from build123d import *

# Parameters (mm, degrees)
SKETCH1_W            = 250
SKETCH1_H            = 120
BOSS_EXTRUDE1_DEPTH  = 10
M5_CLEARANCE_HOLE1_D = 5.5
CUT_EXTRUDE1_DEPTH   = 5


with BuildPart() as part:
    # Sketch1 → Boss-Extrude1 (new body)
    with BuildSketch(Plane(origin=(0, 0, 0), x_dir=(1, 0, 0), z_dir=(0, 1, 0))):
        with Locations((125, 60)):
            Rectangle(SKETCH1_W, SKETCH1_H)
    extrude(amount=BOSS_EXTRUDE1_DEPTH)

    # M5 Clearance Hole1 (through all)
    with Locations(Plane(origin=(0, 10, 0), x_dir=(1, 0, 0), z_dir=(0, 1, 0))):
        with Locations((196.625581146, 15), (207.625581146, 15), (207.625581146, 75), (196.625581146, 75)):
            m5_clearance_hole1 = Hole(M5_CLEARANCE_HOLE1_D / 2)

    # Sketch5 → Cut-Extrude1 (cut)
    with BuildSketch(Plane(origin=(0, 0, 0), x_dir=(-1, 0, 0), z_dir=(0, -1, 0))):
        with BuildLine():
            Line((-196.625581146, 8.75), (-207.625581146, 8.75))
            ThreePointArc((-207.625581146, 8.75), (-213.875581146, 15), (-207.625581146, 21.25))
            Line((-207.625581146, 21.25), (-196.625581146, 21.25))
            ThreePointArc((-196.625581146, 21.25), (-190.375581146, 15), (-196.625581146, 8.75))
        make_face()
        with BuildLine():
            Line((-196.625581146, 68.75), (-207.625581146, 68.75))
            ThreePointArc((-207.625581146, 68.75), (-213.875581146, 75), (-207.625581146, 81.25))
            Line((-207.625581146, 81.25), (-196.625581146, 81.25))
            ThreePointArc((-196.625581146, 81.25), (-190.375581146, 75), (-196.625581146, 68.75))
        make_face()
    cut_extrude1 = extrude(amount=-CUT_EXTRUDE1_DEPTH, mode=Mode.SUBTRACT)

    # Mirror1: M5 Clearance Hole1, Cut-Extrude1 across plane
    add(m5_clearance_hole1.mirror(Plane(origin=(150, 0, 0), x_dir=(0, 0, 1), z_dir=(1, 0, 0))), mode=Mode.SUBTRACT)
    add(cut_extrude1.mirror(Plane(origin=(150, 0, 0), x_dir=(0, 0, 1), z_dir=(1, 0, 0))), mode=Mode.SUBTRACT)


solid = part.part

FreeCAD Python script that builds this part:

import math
import FreeCAD as App
import Part
import Sketcher
from FreeCAD import Vector

doc = App.newDocument("Part")
body = doc.addObject("PartDesign::Body", "Body")

# Sketch on XZ plane
sketch1 = doc.addObject("Sketcher::SketchObject", "Sketch")
body.addObject(sketch1)
sketch1.AttachmentSupport = (doc.XZ_Plane, [""])
sketch1.MapMode = "FlatFace"
sketch1.addGeometry([
    Part.LineSegment(Vector(0, -120, 0), Vector(0, 0, 0)),
    Part.LineSegment(Vector(0, 0, 0), Vector(250, 0, 0)),
    Part.LineSegment(Vector(250, 0, 0), Vector(250, -120, 0)),
    Part.LineSegment(Vector(250, -120, 0), Vector(0, -120, 0)),
], False)
sketch1.addConstraint([
    Sketcher.Constraint("Coincident", 0, 2, 1, 1),
    Sketcher.Constraint("Coincident", 1, 2, 2, 1),
    Sketcher.Constraint("Coincident", 2, 2, 3, 1),
    Sketcher.Constraint("Coincident", 3, 2, 0, 1),
    Sketcher.Constraint("Vertical", 0),
    Sketcher.Constraint("Horizontal", 1),
    Sketcher.Constraint("Vertical", 2),
    Sketcher.Constraint("Horizontal", 3),
    Sketcher.Constraint("Coincident", 0, 2, -1, 1),
    Sketcher.Constraint("DistanceX", 1, 1, 1, 2, 250.0),
    Sketcher.Constraint("DistanceY", 0, 1, 0, 2, 120.0),
])
pad1 = doc.addObject("PartDesign::Pad", "Pad")
body.addObject(pad1)
pad1.Profile = sketch1
pad1.Length = 10
pad1.Reversed = True

# Sketch on XZ plane
sketch2 = doc.addObject("Sketcher::SketchObject", "Sketch001")
body.addObject(sketch2)
sketch2.AttachmentSupport = (doc.XZ_Plane, [""])
sketch2.MapMode = "FlatFace"
sketch2.AttachmentOffset = App.Placement(Vector(0, 0, -10), App.Rotation())
sketch2.addGeometry([
    Part.Circle(Vector(196.6, -15, 0), Vector(0, 0, 1), 2.8),
    Part.Circle(Vector(207.6, -15, 0), Vector(0, 0, 1), 2.8),
    Part.Circle(Vector(207.6, -75, 0), Vector(0, 0, 1), 2.8),
    Part.Circle(Vector(196.6, -75, 0), Vector(0, 0, 1), 2.8),
], False)
sketch2.addConstraint([
    Sketcher.Constraint("Equal", 0, 1),
    Sketcher.Constraint("Equal", 1, 2),
    Sketcher.Constraint("Equal", 2, 3),
    Sketcher.Constraint("Horizontal", 0, 3, 1, 3),
    Sketcher.Constraint("Horizontal", 2, 3, 3, 3),
    Sketcher.Constraint("Vertical", 1, 3, 2, 3),
    Sketcher.Constraint("Vertical", 0, 3, 3, 3),
    Sketcher.Constraint("Diameter", 0, 5.5),
    Sketcher.Constraint("DistanceY", 0, 3, -1, 1, 15.0),
    Sketcher.Constraint("DistanceY", 2, 3, -1, 1, 75.0),
    Sketcher.Constraint("DistanceX", 0, 3, 1, 3, 11.0),
    Sketcher.Constraint("DistanceX", -1, 1, 0, 3, 196.625581),
])
doc.recompute()
hole = doc.addObject("PartDesign::Hole", "Hole")
body.addObject(hole)
hole.Profile = sketch2
hole.ThreadType = "None"
hole.Diameter = 5.5
hole.DepthType = "ThroughAll"
hole.Reversed = True

# Sketch on XZ plane
sketch3 = doc.addObject("Sketcher::SketchObject", "Sketch002")
body.addObject(sketch3)
sketch3.AttachmentSupport = (doc.XZ_Plane, [""])
sketch3.MapMode = "FlatFace"
sketch3.addGeometry([
    Part.LineSegment(Vector(208, -9, 0), Vector(197, -9, 0)),  # 0
    Part.ArcOfCircle(Part.Circle(Vector(197, -15, 0), Vector(0, 0, 1), 6), math.radians(90), math.radians(270)),  # 1
    Part.LineSegment(Vector(197, -21, 0), Vector(208, -21, 0)),  # 2
    Part.ArcOfCircle(Part.Circle(Vector(208, -15, 0), Vector(0, 0, 1), 6), math.radians(-90), math.radians(90)),  # 3
    Part.LineSegment(Vector(208, -69, 0), Vector(197, -69, 0)),  # 4
    Part.ArcOfCircle(Part.Circle(Vector(197, -75, 0), Vector(0, 0, 1), 6), math.radians(90), math.radians(270)),  # 5
    Part.LineSegment(Vector(197, -81, 0), Vector(208, -81, 0)),  # 6
    Part.ArcOfCircle(Part.Circle(Vector(208, -75, 0), Vector(0, 0, 1), 6), math.radians(-90), math.radians(90)),  # 7
], False)
sketch3.addConstraint([
    Sketcher.Constraint("Tangent", 0, 2, 1, 1),
    Sketcher.Constraint("Tangent", 1, 2, 2, 1),
    Sketcher.Constraint("Tangent", 2, 2, 3, 1),
    Sketcher.Constraint("Tangent", 3, 2, 0, 1),
    Sketcher.Constraint("Tangent", 4, 2, 5, 1),
    Sketcher.Constraint("Tangent", 5, 2, 6, 1),
    Sketcher.Constraint("Tangent", 6, 2, 7, 1),
    Sketcher.Constraint("Tangent", 7, 2, 4, 1),
    Sketcher.Constraint("Horizontal", 0),
    Sketcher.Constraint("Horizontal", 2),
    Sketcher.Constraint("Horizontal", 4),
    Sketcher.Constraint("Horizontal", 6),
    Sketcher.Constraint("Equal", 3, 5),
    Sketcher.Constraint("Vertical", 1, 3, 5, 3),
    Sketcher.Constraint("Vertical", 3, 3, 7, 3),
    Sketcher.Constraint("DistanceX", 0, 2, 0, 1, 11.0),
    Sketcher.Constraint("Radius", 1, 6.25),
    Sketcher.Constraint("DistanceY", 1, 3, -1, 1, 15.0),
    Sketcher.Constraint("DistanceY", 5, 3, -1, 1, 75.0),
    Sketcher.Constraint("DistanceX", -1, 1, 1, 3, 196.625581),
])
pocket1 = doc.addObject("PartDesign::Pocket", "Pocket")
body.addObject(pocket1)
pocket1.Profile = sketch3
pocket1.Length = 5
doc.recompute()

datumplane = doc.addObject("PartDesign::Plane", "DatumPlane")
body.addObject(datumplane)
datumplane.AttachmentSupport = (doc.YZ_Plane, [""])
datumplane.MapMode = "FlatFace"
datumplane.AttachmentOffset = App.Placement(Vector(0, 0, 150), App.Rotation())
mirrored = doc.addObject("PartDesign::Mirrored", "Mirrored")
body.addObject(mirrored)
mirrored.Originals = [hole, pocket1]
mirrored.MirrorPlane = (datumplane, [""])
body.Tip = mirrored

doc.recompute()
